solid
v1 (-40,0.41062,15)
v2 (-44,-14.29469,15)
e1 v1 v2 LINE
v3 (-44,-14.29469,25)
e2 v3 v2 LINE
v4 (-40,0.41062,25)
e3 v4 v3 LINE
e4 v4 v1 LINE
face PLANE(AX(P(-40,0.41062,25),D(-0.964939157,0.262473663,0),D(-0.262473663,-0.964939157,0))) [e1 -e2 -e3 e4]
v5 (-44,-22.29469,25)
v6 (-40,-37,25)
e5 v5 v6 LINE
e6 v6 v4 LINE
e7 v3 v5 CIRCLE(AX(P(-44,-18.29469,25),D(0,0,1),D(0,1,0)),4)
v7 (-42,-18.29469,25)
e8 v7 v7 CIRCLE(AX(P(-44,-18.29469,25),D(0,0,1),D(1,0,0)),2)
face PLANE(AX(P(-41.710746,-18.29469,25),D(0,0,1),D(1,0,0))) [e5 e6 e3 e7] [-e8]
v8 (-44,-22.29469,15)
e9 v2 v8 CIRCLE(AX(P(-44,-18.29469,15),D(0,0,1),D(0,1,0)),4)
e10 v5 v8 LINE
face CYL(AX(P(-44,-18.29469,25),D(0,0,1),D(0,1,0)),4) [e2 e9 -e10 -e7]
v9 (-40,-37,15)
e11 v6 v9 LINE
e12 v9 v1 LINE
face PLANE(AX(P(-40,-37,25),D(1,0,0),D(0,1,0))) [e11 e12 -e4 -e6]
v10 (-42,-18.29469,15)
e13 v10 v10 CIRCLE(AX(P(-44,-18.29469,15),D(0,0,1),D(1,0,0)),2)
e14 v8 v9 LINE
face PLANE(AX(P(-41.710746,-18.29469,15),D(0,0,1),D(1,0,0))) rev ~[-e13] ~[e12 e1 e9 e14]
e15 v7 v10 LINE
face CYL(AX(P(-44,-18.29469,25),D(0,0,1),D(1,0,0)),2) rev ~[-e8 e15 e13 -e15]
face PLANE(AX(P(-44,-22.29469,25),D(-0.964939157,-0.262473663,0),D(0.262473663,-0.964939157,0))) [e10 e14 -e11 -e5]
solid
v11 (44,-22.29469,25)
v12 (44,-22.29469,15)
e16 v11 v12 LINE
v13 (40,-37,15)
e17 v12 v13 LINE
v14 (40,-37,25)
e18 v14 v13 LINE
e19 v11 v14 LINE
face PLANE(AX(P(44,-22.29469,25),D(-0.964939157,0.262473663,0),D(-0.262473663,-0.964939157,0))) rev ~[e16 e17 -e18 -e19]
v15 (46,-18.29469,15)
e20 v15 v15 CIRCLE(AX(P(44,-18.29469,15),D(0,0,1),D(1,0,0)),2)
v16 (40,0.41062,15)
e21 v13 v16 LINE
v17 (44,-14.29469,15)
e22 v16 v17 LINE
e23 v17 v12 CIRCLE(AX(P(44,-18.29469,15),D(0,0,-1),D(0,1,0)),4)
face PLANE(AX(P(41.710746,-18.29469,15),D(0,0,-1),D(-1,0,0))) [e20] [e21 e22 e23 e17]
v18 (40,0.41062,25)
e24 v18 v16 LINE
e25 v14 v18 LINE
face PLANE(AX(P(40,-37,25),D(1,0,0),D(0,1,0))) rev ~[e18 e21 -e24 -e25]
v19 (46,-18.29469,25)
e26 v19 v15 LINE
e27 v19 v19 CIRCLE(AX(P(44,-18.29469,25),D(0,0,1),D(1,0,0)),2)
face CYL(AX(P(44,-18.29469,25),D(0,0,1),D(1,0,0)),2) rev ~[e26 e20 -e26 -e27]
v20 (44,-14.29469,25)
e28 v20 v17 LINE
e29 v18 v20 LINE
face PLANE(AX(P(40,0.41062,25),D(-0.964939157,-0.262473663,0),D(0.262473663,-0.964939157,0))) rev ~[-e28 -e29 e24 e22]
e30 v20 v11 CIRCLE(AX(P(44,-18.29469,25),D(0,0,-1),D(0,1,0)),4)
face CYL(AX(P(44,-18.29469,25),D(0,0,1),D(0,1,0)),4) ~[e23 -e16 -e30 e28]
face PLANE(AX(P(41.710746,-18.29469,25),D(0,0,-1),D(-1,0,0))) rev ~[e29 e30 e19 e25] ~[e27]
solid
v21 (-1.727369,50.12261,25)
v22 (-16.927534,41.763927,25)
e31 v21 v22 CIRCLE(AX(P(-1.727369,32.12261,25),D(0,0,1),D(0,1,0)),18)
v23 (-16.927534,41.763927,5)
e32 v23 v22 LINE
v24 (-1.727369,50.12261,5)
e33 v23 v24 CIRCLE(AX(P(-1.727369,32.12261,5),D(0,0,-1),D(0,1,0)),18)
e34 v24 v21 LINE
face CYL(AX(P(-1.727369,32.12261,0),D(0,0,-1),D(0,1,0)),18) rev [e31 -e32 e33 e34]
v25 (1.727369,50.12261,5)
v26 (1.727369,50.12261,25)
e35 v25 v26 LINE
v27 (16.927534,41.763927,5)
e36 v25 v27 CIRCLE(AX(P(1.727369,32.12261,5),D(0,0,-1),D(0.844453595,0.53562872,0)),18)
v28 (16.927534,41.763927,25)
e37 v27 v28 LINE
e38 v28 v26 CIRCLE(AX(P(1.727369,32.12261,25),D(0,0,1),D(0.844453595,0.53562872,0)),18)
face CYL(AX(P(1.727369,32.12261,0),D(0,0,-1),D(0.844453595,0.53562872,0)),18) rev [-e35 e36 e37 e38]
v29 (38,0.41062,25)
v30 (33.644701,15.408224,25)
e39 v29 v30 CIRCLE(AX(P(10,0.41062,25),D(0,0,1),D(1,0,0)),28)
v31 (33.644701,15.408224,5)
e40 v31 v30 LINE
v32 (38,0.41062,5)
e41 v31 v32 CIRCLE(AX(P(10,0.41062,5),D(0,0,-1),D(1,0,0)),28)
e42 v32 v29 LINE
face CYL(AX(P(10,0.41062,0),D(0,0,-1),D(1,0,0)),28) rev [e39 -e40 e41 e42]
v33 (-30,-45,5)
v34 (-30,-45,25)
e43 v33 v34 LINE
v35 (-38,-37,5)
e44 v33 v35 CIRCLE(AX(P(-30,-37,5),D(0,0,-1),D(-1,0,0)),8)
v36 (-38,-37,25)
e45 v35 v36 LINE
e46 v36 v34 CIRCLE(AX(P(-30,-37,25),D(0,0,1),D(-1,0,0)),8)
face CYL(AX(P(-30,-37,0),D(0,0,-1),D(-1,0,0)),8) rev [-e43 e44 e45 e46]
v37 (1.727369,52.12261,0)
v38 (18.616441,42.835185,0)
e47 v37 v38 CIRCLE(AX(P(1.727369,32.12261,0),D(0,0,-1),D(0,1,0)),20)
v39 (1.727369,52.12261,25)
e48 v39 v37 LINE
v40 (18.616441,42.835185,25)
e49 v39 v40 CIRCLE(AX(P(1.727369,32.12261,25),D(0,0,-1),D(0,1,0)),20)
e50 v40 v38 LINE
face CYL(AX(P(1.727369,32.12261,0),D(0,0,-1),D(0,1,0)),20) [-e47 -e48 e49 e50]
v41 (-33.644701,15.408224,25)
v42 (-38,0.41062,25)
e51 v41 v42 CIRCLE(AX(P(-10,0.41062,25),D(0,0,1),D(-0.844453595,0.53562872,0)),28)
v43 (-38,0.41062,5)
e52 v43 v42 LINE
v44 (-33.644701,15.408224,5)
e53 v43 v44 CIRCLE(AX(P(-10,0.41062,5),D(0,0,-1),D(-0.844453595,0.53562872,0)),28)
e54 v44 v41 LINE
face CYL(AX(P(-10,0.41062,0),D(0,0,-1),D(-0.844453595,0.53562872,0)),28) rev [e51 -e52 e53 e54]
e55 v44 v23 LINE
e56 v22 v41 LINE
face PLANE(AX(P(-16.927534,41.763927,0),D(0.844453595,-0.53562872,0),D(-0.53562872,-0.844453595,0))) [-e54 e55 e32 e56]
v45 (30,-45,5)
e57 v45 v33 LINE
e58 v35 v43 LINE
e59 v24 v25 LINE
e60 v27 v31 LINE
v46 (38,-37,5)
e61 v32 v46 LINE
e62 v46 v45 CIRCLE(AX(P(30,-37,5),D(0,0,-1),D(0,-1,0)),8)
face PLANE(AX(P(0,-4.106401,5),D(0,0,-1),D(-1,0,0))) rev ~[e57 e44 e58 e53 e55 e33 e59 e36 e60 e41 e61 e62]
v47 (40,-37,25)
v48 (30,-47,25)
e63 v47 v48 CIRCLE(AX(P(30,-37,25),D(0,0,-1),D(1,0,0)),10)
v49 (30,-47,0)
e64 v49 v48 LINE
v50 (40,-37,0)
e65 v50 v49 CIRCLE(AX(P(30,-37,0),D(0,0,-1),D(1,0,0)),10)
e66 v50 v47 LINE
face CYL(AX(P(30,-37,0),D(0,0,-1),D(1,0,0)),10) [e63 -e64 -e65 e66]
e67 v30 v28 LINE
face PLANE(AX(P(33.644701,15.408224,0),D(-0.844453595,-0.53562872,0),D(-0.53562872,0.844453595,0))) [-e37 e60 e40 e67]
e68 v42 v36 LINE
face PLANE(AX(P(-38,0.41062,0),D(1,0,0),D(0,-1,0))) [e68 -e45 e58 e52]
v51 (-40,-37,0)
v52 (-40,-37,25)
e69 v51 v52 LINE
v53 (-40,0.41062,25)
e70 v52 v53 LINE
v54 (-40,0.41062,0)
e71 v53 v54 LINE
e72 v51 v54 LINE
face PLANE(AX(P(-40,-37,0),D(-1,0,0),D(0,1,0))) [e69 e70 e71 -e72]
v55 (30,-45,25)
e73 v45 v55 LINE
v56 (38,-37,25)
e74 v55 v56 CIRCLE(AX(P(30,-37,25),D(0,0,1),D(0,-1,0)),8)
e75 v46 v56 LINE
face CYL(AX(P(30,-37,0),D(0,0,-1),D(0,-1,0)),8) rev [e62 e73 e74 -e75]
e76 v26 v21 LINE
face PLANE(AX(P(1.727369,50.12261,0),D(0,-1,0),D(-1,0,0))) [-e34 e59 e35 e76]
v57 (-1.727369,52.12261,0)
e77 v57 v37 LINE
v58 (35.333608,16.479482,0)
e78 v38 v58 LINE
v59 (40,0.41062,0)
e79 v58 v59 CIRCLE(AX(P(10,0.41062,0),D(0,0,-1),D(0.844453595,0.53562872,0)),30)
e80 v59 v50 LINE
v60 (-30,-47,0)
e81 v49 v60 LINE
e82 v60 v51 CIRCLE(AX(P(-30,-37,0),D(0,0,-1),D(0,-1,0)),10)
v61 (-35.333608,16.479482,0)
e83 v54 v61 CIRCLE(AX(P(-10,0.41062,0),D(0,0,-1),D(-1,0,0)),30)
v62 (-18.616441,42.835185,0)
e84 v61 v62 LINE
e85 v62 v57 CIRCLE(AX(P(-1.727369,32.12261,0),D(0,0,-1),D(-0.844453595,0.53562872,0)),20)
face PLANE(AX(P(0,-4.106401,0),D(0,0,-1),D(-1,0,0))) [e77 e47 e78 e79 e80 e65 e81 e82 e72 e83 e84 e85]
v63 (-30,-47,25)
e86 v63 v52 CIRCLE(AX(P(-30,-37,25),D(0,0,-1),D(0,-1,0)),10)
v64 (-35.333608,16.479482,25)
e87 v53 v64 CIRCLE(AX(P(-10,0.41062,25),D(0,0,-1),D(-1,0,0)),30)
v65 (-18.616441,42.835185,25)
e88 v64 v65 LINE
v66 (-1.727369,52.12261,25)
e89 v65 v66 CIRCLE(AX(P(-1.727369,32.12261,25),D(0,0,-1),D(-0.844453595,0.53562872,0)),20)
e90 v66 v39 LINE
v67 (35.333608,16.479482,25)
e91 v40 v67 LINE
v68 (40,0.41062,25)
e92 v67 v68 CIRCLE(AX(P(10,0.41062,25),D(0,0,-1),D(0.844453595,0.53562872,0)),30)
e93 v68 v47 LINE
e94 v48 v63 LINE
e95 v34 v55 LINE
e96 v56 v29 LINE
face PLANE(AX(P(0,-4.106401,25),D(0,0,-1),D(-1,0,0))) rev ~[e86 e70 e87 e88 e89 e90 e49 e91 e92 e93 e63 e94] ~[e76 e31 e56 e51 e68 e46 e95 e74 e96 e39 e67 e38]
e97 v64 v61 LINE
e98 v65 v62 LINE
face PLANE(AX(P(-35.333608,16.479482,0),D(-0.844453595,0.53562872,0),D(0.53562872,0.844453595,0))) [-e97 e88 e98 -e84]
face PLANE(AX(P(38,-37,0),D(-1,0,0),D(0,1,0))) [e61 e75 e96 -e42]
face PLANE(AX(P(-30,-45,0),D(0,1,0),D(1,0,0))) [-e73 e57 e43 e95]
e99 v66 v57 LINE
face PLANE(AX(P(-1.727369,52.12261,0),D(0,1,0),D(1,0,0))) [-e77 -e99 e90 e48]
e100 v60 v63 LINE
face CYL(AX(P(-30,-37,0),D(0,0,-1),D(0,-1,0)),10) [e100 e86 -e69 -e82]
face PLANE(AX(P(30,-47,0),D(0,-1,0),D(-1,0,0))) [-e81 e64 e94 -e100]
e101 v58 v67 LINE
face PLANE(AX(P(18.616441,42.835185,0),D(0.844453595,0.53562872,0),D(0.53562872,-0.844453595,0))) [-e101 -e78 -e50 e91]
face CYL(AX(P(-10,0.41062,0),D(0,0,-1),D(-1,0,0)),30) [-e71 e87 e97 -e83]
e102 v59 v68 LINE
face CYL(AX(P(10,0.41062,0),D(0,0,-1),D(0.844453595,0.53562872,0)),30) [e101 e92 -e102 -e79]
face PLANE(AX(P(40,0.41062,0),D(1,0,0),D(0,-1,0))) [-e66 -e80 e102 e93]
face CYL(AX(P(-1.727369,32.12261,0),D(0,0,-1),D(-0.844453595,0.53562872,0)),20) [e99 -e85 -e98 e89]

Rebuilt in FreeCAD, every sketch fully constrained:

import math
import FreeCAD as App
import Part
import Sketcher
from FreeCAD import Vector
Q = App.Units.Quantity

doc = App.newDocument("Part")
body = doc.addObject("PartDesign::Body", "Body")

# Sketch on XY plane
sketch1 = body.newObject("Sketcher::SketchObject", "Sketch")
sketch1.AttachmentSupport = (doc.getObject("XY_Plane"), [""])
sketch1.MapMode = "FlatFace"
sketch1.addGeometry([
    Part.LineSegment(Vector(-40, 0.41062, 0), Vector(-40, -37, 0)),  # 0
    Part.ArcOfCircle(Part.Circle(Vector(-30, -37, 0), Vector(0, 0, 1), 10), math.radians(180), math.radians(270)),  # 1
    Part.LineSegment(Vector(-30, -47, 0), Vector(30, -47, 0)),  # 2
    Part.ArcOfCircle(Part.Circle(Vector(30, -37, 0), Vector(0, 0, 1), 10), math.radians(-90), math.radians(0)),  # 3
    Part.LineSegment(Vector(40, -37, 0), Vector(40, 0.41062, 0)),  # 4
    Part.ArcOfCircle(Part.Circle(Vector(10, 0.41062, 0), Vector(0, 0, 1), 30), math.radians(0), math.radians(32.38656)),  # 5
    Part.LineSegment(Vector(35.333608, 16.479482, 0), Vector(18.616441, 42.835185, 0)),  # 6
    Part.ArcOfCircle(Part.Circle(Vector(1.727369, 32.12261, 0), Vector(0, 0, 1), 20), math.radians(32.38656), math.radians(90)),  # 7
    Part.LineSegment(Vector(1.727369, 52.12261, 0), Vector(-1.727369, 52.12261, 0)),  # 8
    Part.ArcOfCircle(Part.Circle(Vector(-1.727369, 32.12261, 0), Vector(0, 0, 1), 20), math.radians(90), math.radians(147.61344)),  # 9
    Part.LineSegment(Vector(-18.616441, 42.835185, 0), Vector(-35.333608, 16.479482, 0)),  # 10
    Part.ArcOfCircle(Part.Circle(Vector(-10, 0.41062, 0), Vector(0, 0, 1), 30), math.radians(147.61344), math.radians(180)),  # 11
    Part.LineSegment(Vector(-1.727369, 50.12261, 0), Vector(1.727369, 50.12261, 0)),  # 12
    Part.ArcOfCircle(Part.Circle(Vector(1.727369, 32.12261, 0), Vector(0, 0, 1), 18), math.radians(32.38656), math.radians(90)),  # 13
    Part.LineSegment(Vector(16.927534, 41.763927, 0), Vector(33.644701, 15.408224, 0)),  # 14
    Part.ArcOfCircle(Part.Circle(Vector(10, 0.41062, 0), Vector(0, 0, 1), 28), math.radians(0), math.radians(32.38656)),  # 15
    Part.LineSegment(Vector(38, 0.41062, 0), Vector(38, -37, 0)),  # 16
    Part.ArcOfCircle(Part.Circle(Vector(30, -37, 0), Vector(0, 0, 1), 8), math.radians(-90), math.radians(0)),  # 17
    Part.LineSegment(Vector(30, -45, 0), Vector(-30, -45, 0)),  # 18
    Part.ArcOfCircle(Part.Circle(Vector(-30, -37, 0), Vector(0, 0, 1), 8), math.radians(-180), math.radians(-90)),  # 19
    Part.LineSegment(Vector(-38, -37, 0), Vector(-38, 0.41062, 0)),  # 20
    Part.ArcOfCircle(Part.Circle(Vector(-10, 0.41062, 0), Vector(0, 0, 1), 28), math.radians(147.61344), math.radians(180)),  # 21
    Part.LineSegment(Vector(-33.644701, 15.408224, 0), Vector(-16.927534, 41.763927, 0)),  # 22
    Part.ArcOfCircle(Part.Circle(Vector(-1.727369, 32.12261, 0), Vector(0, 0, 1), 18), math.radians(90), math.radians(147.61344)),  # 23
], False)
sketch1.addConstraint([
    Sketcher.Constraint("Tangent", 0, 2, 1, 1),
    Sketcher.Constraint("Tangent", 1, 2, 2, 1),
    Sketcher.Constraint("Tangent", 2, 2, 3, 1),
    Sketcher.Constraint("Tangent", 3, 2, 4, 1),
    Sketcher.Constraint("Tangent", 4, 2, 5, 1),
    Sketcher.Constraint("Tangent", 5, 2, 6, 1),
    Sketcher.Constraint("Tangent", 6, 2, 7, 1),
    Sketcher.Constraint("Tangent", 7, 2, 8, 1),
    Sketcher.Constraint("Tangent", 8, 2, 9, 1),
    Sketcher.Constraint("Tangent", 9, 2, 10, 1),
    Sketcher.Constraint("Tangent", 10, 2, 11, 1),
    Sketcher.Constraint("Tangent", 11, 2, 0, 1),
    Sketcher.Constraint("Tangent", 12, 2, 13, 2),
    Sketcher.Constraint("Tangent", 13, 1, 14, 1),
    Sketcher.Constraint("Tangent", 14, 2, 15, 2),
    Sketcher.Constraint("Tangent", 15, 1, 16, 1),
    Sketcher.Constraint("Tangent", 16, 2, 17, 2),
    Sketcher.Constraint("Tangent", 17, 1, 18, 1),
    Sketcher.Constraint("Tangent", 18, 2, 19, 2),
    Sketcher.Constraint("Tangent", 19, 1, 20, 1),
    Sketcher.Constraint("Tangent", 20, 2, 21, 2),
    Sketcher.Constraint("Tangent", 21, 1, 22, 1),
    Sketcher.Constraint("Tangent", 22, 2, 23, 2),
    Sketcher.Constraint("Tangent", 23, 1, 12, 1),
    Sketcher.Constraint("Vertical", 0),
    Sketcher.Constraint("Horizontal", 2),
    Sketcher.Constraint("Vertical", 4),
    Sketcher.Constraint("Horizontal", 8),
    Sketcher.Constraint("Horizontal", 12),
    Sketcher.Constraint("Vertical", 16),
    Sketcher.Constraint("Horizontal", 18),
    Sketcher.Constraint("Vertical", 20),
    Sketcher.Constraint("Coincident", 13, 3, 7, 3),
    Sketcher.Constraint("Coincident", 15, 3, 5, 3),
    Sketcher.Constraint("Coincident", 17, 3, 3, 3),
    Sketcher.Constraint("Coincident", 19, 3, 1, 3),
    Sketcher.Constraint("Coincident", 21, 3, 11, 3),
    Sketcher.Constraint("Coincident", 23, 3, 9, 3),
    Sketcher.Constraint("Equal", 1, 3),
    Sketcher.Constraint("Equal", 7, 9),
    Sketcher.Constraint("Equal", 5, 11),
    Sketcher.Constraint("Symmetric", 5, 3, 11, 3, -2),
    Sketcher.Constraint("Parallel", 6, 14),
    Sketcher.Constraint("Horizontal", 6, 2, 9, 2),
    Sketcher.Constraint("Radius", 1, Q("10 mm")),
    Sketcher.Constraint("Radius", 5, Q("30 mm")),
    Sketcher.Constraint("Radius", 7, Q("20 mm")),
    Sketcher.Constraint("Radius", 13, Q("18 mm")),
    Sketcher.Constraint("DistanceX", 2, 1, 2, 2, Q("60 mm")),
    Sketcher.Constraint("DistanceY", 1, 3, -1, 1, Q("37 mm")),
    Sketcher.Constraint("DistanceX", 8, 2, 8, 1, Q("3.454739 mm")),
    Sketcher.Constraint("DistanceY", 0, 2, 0, 1, Q("37.41062 mm")),
    Sketcher.Constraint("DistanceX", -1, 1, 14, 2, Q("33.644701 mm")),
])
pad1 = body.newObject("PartDesign::Pad", "Pad")
pad1.Profile = sketch1
pad1.Length = 25

# Sketch on XY plane
sketch2 = body.newObject("Sketcher::SketchObject", "Sketch001")
sketch2.AttachmentSupport = (doc.getObject("XY_Plane"), [""])
sketch2.MapMode = "FlatFace"
sketch2.addGeometry([
    Part.LineSegment(Vector(-1.727369, 52.12261, 0), Vector(1.727369, 52.12261, 0)),  # 0
    Part.ArcOfCircle(Part.Circle(Vector(1.727369, 32.12261, 0), Vector(0, 0, 1), 20), math.radians(32.38656), math.radians(90)),  # 1
    Part.LineSegment(Vector(18.616441, 42.835185, 0), Vector(35.333608, 16.479482, 0)),  # 2
    Part.ArcOfCircle(Part.Circle(Vector(10, 0.41062, 0), Vector(0, 0, 1), 30), math.radians(0), math.radians(32.38656)),  # 3
    Part.LineSegment(Vector(40, 0.41062, 0), Vector(40, -37, 0)),  # 4
    Part.ArcOfCircle(Part.Circle(Vector(30, -37, 0), Vector(0, 0, 1), 10), math.radians(-90), math.radians(0)),  # 5
    Part.LineSegment(Vector(30, -47, 0), Vector(-30, -47, 0)),  # 6
    Part.ArcOfCircle(Part.Circle(Vector(-30, -37, 0), Vector(0, 0, 1), 10), math.radians(180), math.radians(270)),  # 7
    Part.LineSegment(Vector(-40, -37, 0), Vector(-40, 0.41062, 0)),  # 8
    Part.ArcOfCircle(Part.Circle(Vector(-10, 0.41062, 0), Vector(0, 0, 1), 30), math.radians(147.61344), math.radians(180)),  # 9
    Part.LineSegment(Vector(-35.333608, 16.479482, 0), Vector(-18.616441, 42.835185, 0)),  # 10
    Part.ArcOfCircle(Part.Circle(Vector(-1.727369, 32.12261, 0), Vector(0, 0, 1), 20), math.radians(90), math.radians(147.61344)),  # 11
], False)
sketch2.addConstraint([
    Sketcher.Constraint("Tangent", 0, 2, 1, 2),
    Sketcher.Constraint("Tangent", 1, 1, 2, 1),
    Sketcher.Constraint("Tangent", 2, 2, 3, 2),
    Sketcher.Constraint("Tangent", 3, 1, 4, 1),
    Sketcher.Constraint("Tangent", 4, 2, 5, 2),
    Sketcher.Constraint("Tangent", 5, 1, 6, 1),
    Sketcher.Constraint("Tangent", 6, 2, 7, 2),
    Sketcher.Constraint("Tangent", 7, 1, 8, 1),
    Sketcher.Constraint("Tangent", 8, 2, 9, 2),
    Sketcher.Constraint("Tangent", 9, 1, 10, 1),
    Sketcher.Constraint("Tangent", 10, 2, 11, 2),
    Sketcher.Constraint("Tangent", 11, 1, 0, 1),
    Sketcher.Constraint("Horizontal", 0),
    Sketcher.Constraint("Vertical", 4),
    Sketcher.Constraint("Horizontal", 6),
    Sketcher.Constraint("Vertical", 8),
    Sketcher.Constraint("Equal", 5, 7),
    Sketcher.Constraint("Equal", 3, 9),
    Sketcher.Constraint("Equal", 1, 11),
    Sketcher.Constraint("Symmetric", 3, 3, 9, 3, -2),
    Sketcher.Constraint("Horizontal", 2, 2, 9, 1),
    Sketcher.Constraint("Radius", 1, Q("20 mm")),
    Sketcher.Constraint("Radius", 3, Q("30 mm")),
    Sketcher.Constraint("Radius", 5, Q("10 mm")),
    Sketcher.Constraint("DistanceX", 6, 2, 6, 1, Q("60 mm")),
    Sketcher.Constraint("DistanceY", 5, 3, -1, 1, Q("37 mm")),
    Sketcher.Constraint("DistanceX", 0, 1, 0, 2, Q("3.454739 mm")),
    Sketcher.Constraint("DistanceY", 4, 2, 4, 1, Q("37.41062 mm")),
    Sketcher.Constraint("DistanceY", -1, 1, 1, 3, Q("32.12261 mm")),
])
pad2 = body.newObject("PartDesign::Pad", "Pad001")
pad2.Profile = sketch2
pad2.Length = 5
body2 = doc.addObject("PartDesign::Body", "Body001")

# Sketch on XY plane
sketch3 = body2.newObject("Sketcher::SketchObject", "Sketch002")
sketch3.AttachmentSupport = (doc.getObject("XY_Plane001"), [""])
sketch3.MapMode = "FlatFace"
sketch3.AttachmentOffset = App.Placement(Vector(0, 0, 25), App.Rotation())
sketch3.addGeometry([
    Part.LineSegment(Vector(44, -14.29469, 0), Vector(40, 0.41062, 0)),  # 0
    Part.LineSegment(Vector(40, 0.41062, 0), Vector(40, -37, 0)),  # 1
    Part.LineSegment(Vector(40, -37, 0), Vector(44, -22.29469, 0)),  # 2
    Part.ArcOfCircle(Part.Circle(Vector(44, -18.29469, 0), Vector(0, 0, 1), 4), math.radians(-90), math.radians(90)),  # 3
    Part.Circle(Vector(44, -18.29469, 0), Vector(0, 0, 1), 2),  # 4
], False)
sketch3.addConstraint([
    Sketcher.Constraint("Coincident", 0, 2, 1, 1),
    Sketcher.Constraint("Coincident", 1, 2, 2, 1),
    Sketcher.Constraint("Coincident", 2, 2, 3, 1),
    Sketcher.Constraint("Coincident", 3, 2, 0, 1),
    Sketcher.Constraint("Vertical", 1),
    Sketcher.Constraint("Coincident", 4, 3, 3, 3),
    Sketcher.Constraint("Vertical", 4, 3, 2, 2),
    Sketcher.Constraint("Vertical", 2, 2, 3, 2),
    Sketcher.Constraint("Equal", 0, 2),
    Sketcher.Constraint("Diameter", 4, Q("4 mm")),
    Sketcher.Constraint("Radius", 3, Q("4 mm")),
    Sketcher.Constraint("DistanceX", -1, 1, 3, 3, Q("44 mm")),
    Sketcher.Constraint("DistanceX", -1, 1, 0, 2, Q("40 mm")),
    Sketcher.Constraint("DistanceY", 1, 2, -1, 1, Q("37 mm")),
    Sketcher.Constraint("DistanceY", 1, 2, 1, 1, Q("37.41062 mm")),
])
pad3 = body2.newObject("PartDesign::Pad", "Pad002")
pad3.Profile = sketch3
pad3.Length = 10
pad3.Reversed = True
body3 = doc.addObject("PartDesign::Body", "Body002")

# Sketch on XY plane
sketch4 = body3.newObject("Sketcher::SketchObject", "Sketch003")
sketch4.AttachmentSupport = (doc.getObject("XY_Plane002"), [""])
sketch4.MapMode = "FlatFace"
sketch4.AttachmentOffset = App.Placement(Vector(0, 0, 25), App.Rotation())
sketch4.addGeometry([
    Part.LineSegment(Vector(-40, 0.41062, 0), Vector(-44, -14.29469, 0)),  # 0
    Part.ArcOfCircle(Part.Circle(Vector(-44, -18.29469, 0), Vector(0, 0, 1), 4), math.radians(90), math.radians(270)),  # 1
    Part.LineSegment(Vector(-44, -22.29469, 0), Vector(-40, -37, 0)),  # 2
    Part.LineSegment(Vector(-40, -37, 0), Vector(-40, 0.41062, 0)),  # 3
    Part.Circle(Vector(-44, -18.29469, 0), Vector(0, 0, 1), 2),  # 4
], False)
sketch4.addConstraint([
    Sketcher.Constraint("Coincident", 0, 2, 1, 1),
    Sketcher.Constraint("Coincident", 1, 2, 2, 1),
    Sketcher.Constraint("Coincident", 2, 2, 3, 1),
    Sketcher.Constraint("Coincident", 3, 2, 0, 1),
    Sketcher.Constraint("Vertical", 3),
    Sketcher.Constraint("Coincident", 4, 3, 1, 3),
    Sketcher.Constraint("Vertical", 4, 3, 0, 2),
    Sketcher.Constraint("Vertical", 0, 2, 1, 2),
    Sketcher.Constraint("Equal", 0, 2),
    Sketcher.Constraint("Diameter", 4, Q("4 mm")),
    Sketcher.Constraint("Radius", 1, Q("4 mm")),
    Sketcher.Constraint("DistanceX", 1, 3, -1, 1, Q("44 mm")),
    Sketcher.Constraint("DistanceX", 2, 2, -1, 1, Q("40 mm")),
    Sketcher.Constraint("DistanceY", 2, 2, -1, 1, Q("37 mm")),
    Sketcher.Constraint("DistanceY", 3, 1, 3, 2, Q("37.41062 mm")),
])
pad4 = body3.newObject("PartDesign::Pad", "Pad003")
pad4.Profile = sketch4
pad4.Length = 10
pad4.Reversed = True

doc.recompute()
